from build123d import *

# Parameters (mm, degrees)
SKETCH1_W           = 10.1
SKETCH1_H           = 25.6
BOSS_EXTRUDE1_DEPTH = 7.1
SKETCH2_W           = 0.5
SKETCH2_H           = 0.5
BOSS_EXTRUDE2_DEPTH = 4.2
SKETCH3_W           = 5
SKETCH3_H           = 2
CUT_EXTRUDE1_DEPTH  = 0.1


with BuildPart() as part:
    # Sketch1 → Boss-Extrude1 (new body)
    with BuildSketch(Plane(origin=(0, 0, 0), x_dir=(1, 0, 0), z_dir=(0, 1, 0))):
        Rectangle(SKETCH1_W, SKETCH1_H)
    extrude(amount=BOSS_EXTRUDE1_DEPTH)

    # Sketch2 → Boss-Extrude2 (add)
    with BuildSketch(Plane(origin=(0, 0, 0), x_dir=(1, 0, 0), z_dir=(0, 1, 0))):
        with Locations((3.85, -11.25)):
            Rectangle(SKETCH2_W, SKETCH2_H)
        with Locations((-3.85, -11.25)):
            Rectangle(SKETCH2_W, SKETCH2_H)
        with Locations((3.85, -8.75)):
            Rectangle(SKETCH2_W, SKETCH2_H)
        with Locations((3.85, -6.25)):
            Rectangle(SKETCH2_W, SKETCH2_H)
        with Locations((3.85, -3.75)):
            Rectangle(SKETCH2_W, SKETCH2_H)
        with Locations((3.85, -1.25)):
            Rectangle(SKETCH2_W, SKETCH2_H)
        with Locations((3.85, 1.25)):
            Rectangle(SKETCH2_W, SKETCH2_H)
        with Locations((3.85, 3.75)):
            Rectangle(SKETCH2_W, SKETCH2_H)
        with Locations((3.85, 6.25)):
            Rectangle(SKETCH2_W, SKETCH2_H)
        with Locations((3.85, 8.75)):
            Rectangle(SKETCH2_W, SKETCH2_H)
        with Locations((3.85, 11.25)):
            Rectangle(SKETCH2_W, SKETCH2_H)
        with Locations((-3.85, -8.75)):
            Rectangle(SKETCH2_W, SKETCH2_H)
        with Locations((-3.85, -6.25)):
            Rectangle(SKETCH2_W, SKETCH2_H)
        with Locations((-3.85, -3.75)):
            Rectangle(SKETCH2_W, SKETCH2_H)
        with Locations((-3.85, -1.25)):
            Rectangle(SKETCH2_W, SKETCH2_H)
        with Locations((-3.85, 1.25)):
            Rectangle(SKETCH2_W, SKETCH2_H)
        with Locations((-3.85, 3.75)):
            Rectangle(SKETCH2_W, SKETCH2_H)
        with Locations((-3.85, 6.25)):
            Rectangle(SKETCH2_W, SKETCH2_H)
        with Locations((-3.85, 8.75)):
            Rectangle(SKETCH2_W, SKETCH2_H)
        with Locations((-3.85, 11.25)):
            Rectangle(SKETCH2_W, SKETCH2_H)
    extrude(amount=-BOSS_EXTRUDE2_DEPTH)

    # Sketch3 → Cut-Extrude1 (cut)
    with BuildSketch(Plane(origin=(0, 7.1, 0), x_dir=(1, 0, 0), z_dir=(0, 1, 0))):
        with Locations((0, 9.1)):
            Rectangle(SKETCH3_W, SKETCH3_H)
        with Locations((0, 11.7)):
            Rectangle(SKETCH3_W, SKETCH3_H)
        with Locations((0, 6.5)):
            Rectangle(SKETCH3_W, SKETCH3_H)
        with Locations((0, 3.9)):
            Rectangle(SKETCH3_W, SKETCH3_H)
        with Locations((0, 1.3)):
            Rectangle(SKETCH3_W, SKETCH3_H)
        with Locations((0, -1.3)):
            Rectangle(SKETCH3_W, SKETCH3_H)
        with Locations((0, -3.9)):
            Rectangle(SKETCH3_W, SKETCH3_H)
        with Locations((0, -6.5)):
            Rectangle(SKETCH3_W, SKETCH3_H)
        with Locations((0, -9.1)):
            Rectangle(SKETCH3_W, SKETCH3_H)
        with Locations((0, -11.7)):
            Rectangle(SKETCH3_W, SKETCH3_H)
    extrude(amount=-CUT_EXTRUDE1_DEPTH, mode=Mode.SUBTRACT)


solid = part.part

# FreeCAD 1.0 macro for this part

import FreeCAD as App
import Part
import Sketcher

V = App.Vector

doc = App.newDocument("Part")
body = doc.addObject("PartDesign::Body", "Body")

# Sketch on XZ plane
sketch1 = body.newObject("Sketcher::SketchObject", "Sketch")
sketch1.AttachmentSupport = (doc.getObject("XZ_Plane"), [""])
sketch1.MapMode = "FlatFace"
sketch1.addGeometry(Part.LineSegment(V(-5, -13, 0), V(-5, 13, 0)), False)
sketch1.addGeometry(Part.LineSegment(V(-5, 13, 0), V(5, 13, 0)), False)
sketch1.addGeometry(Part.LineSegment(V(5, 13, 0), V(5, -13, 0)), False)
sketch1.addGeometry(Part.LineSegment(V(5, -13, 0), V(-5, -13, 0)), False)
sketch1.addConstraint(Sketcher.Constraint("Coincident", 0, 2, 1, 1))
sketch1.addConstraint(Sketcher.Constraint("Coincident", 1, 2, 2, 1))
sketch1.addConstraint(Sketcher.Constraint("Coincident", 2, 2, 3, 1))
sketch1.addConstraint(Sketcher.Constraint("Coincident", 3, 2, 0, 1))
sketch1.addConstraint(Sketcher.Constraint("Vertical", 0))
sketch1.addConstraint(Sketcher.Constraint("Horizontal", 1))
sketch1.addConstraint(Sketcher.Constraint("Vertical", 2))
sketch1.addConstraint(Sketcher.Constraint("Horizontal", 3))
sketch1.addConstraint(Sketcher.Constraint("Symmetric", 0, 2, 2, 2, -1, 1))
sketch1.addConstraint(Sketcher.Constraint("DistanceX", 1, 1, 1, 2, 10.1))
sketch1.addConstraint(Sketcher.Constraint("DistanceY", 0, 1, 0, 2, 25.6))
pad1 = body.newObject("PartDesign::Pad", "Pad")
pad1.Profile = sketch1
pad1.Length = 7.1
pad1.Reversed = True

# Sketch on XZ plane
sketch2 = body.newObject("Sketcher::SketchObject", "Sketch001")
sketch2.AttachmentSupport = (doc.getObject("XZ_Plane"), [""])
sketch2.MapMode = "FlatFace"
sketch2.addGeometry(Part.LineSegment(V(3.6, 11, 0), V(3.6, 11.5, 0)), False)
sketch2.addGeometry(Part.LineSegment(V(3.6, 11.5, 0), V(4.1, 11.5, 0)), False)
sketch2.addGeometry(Part.LineSegment(V(4.1, 11.5, 0), V(4.1, 11, 0)), False)
sketch2.addGeometry(Part.LineSegment(V(4.1, 11, 0), V(3.6, 11, 0)), False)
sketch2.addGeometry(Part.LineSegment(V(-4.1, 11, 0), V(-4.1, 11.5, 0)), False)
sketch2.addGeometry(Part.LineSegment(V(-4.1, 11.5, 0), V(-3.6, 11.5, 0)), False)
sketch2.addGeometry(Part.LineSegment(V(-3.6, 11.5, 0), V(-3.6, 11, 0)), False)
sketch2.addGeometry(Part.LineSegment(V(-3.6, 11, 0), V(-4.1, 11, 0)), False)
sketch2.addGeometry(Part.LineSegment(V(3.6, 8.5, 0), V(3.6, 9, 0)), False)
sketch2.addGeometry(Part.LineSegment(V(3.6, 9, 0), V(4.1, 9, 0)), False)
sketch2.addGeometry(Part.LineSegment(V(4.1, 9, 0), V(4.1, 8.5, 0)), False)
sketch2.addGeometry(Part.LineSegment(V(4.1, 8.5, 0), V(3.6, 8.5, 0)), False)
sketch2.addGeometry(Part.LineSegment(V(3.6, 6, 0), V(3.6, 6.5, 0)), False)
sketch2.addGeometry(Part.LineSegment(V(3.6, 6.5, 0), V(4.1, 6.5, 0)), False)
sketch2.addGeometry(Part.LineSegment(V(4.1, 6.5, 0), V(4.1, 6, 0)), False)
sketch2.addGeometry(Part.LineSegment(V(4.1, 6, 0), V(3.6, 6, 0)), False)
sketch2.addGeometry(Part.LineSegment(V(3.6, 3.5, 0), V(3.6, 4, 0)), False)
sketch2.addGeometry(Part.LineSegment(V(3.6, 4, 0), V(4.1, 4, 0)), False)
sketch2.addGeometry(Part.LineSegment(V(4.1, 4, 0), V(4.1, 3.5, 0)), False)
sketch2.addGeometry(Part.LineSegment(V(4.1, 3.5, 0), V(3.6, 3.5, 0)), False)
sketch2.addGeometry(Part.LineSegment(V(3.6, 1, 0), V(3.6, 1.5, 0)), False)
sketch2.addGeometry(Part.LineSegment(V(3.6, 1.5, 0), V(4.1, 1.5, 0)), False)
sketch2.addGeometry(Part.LineSegment(V(4.1, 1.5, 0), V(4.1, 1, 0)), False)
sketch2.addGeometry(Part.LineSegment(V(4.1, 1, 0), V(3.6, 1, 0)), False)
sketch2.addGeometry(Part.LineSegment(V(3.6, -1.5, 0), V(3.6, -1, 0)), False)
sketch2.addGeometry(Part.LineSegment(V(3.6, -1, 0), V(4.1, -1, 0)), False)
sketch2.addGeometry(Part.LineSegment(V(4.1, -1, 0), V(4.1, -1.5, 0)), False)
sketch2.addGeometry(Part.LineSegment(V(4.1, -1.5, 0), V(3.6, -1.5, 0)), False)
sketch2.addGeometry(Part.LineSegment(V(3.6, -4, 0), V(3.6, -3.5, 0)), False)
sketch2.addGeometry(Part.LineSegment(V(3.6, -3.5, 0), V(4.1, -3.5, 0)), False)
sketch2.addGeometry(Part.LineSegment(V(4.1, -3.5, 0), V(4.1, -4, 0)), False)
sketch2.addGeometry(Part.LineSegment(V(4.1, -4, 0), V(3.6, -4, 0)), False)
sketch2.addGeometry(Part.LineSegment(V(3.6, -6.5, 0), V(3.6, -6, 0)), False)
sketch2.addGeometry(Part.LineSegment(V(3.6, -6, 0), V(4.1, -6, 0)), False)
sketch2.addGeometry(Part.LineSegment(V(4.1, -6, 0), V(4.1, -6.5, 0)), False)
sketch2.addGeometry(Part.LineSegment(V(4.1, -6.5, 0), V(3.6, -6.5, 0)), False)
sketch2.addGeometry(Part.LineSegment(V(3.6, -9, 0), V(3.6, -8.5, 0)), False)
sketch2.addGeometry(Part.LineSegment(V(3.6, -8.5, 0), V(4.1, -8.5, 0)), False)
sketch2.addGeometry(Part.LineSegment(V(4.1, -8.5, 0), V(4.1, -9, 0)), False)
sketch2.addGeometry(Part.LineSegment(V(4.1, -9, 0), V(3.6, -9, 0)), False)
sketch2.addGeometry(Part.LineSegment(V(3.6, -11.5, 0), V(3.6, -11, 0)), False)
sketch2.addGeometry(Part.LineSegment(V(3.6, -11, 0), V(4.1, -11, 0)), False)
sketch2.addGeometry(Part.LineSegment(V(4.1, -11, 0), V(4.1, -11.5, 0)), False)
sketch2.addGeometry(Part.LineSegment(V(4.1, -11.5, 0), V(3.6, -11.5, 0)), False)
sketch2.addGeometry(Part.LineSegment(V(-4.1, 8.5, 0), V(-4.1, 9, 0)), False)
sketch2.addGeometry(Part.LineSegment(V(-4.1, 9, 0), V(-3.6, 9, 0)), False)
sketch2.addGeometry(Part.LineSegment(V(-3.6, 9, 0), V(-3.6, 8.5, 0)), False)
sketch2.addGeometry(Part.LineSegment(V(-3.6, 8.5, 0), V(-4.1, 8.5, 0)), False)
sketch2.addGeometry(Part.LineSegment(V(-4.1, 6, 0), V(-4.1, 6.5, 0)), False)
sketch2.addGeometry(Part.LineSegment(V(-4.1, 6.5, 0), V(-3.6, 6.5, 0)), False)
sketch2.addGeometry(Part.LineSegment(V(-3.6, 6.5, 0), V(-3.6, 6, 0)), False)
sketch2.addGeometry(Part.LineSegment(V(-3.6, 6, 0), V(-4.1, 6, 0)), False)
sketch2.addGeometry(Part.LineSegment(V(-4.1, 3.5, 0), V(-4.1, 4, 0)), False)
sketch2.addGeometry(Part.LineSegment(V(-4.1, 4, 0), V(-3.6, 4, 0)), False)
sketch2.addGeometry(Part.LineSegment(V(-3.6, 4, 0), V(-3.6, 3.5, 0)), False)
sketch2.addGeometry(Part.LineSegment(V(-3.6, 3.5, 0), V(-4.1, 3.5, 0)), False)
sketch2.addGeometry(Part.LineSegment(V(-4.1, 1, 0), V(-4.1, 1.5, 0)), False)
sketch2.addGeometry(Part.LineSegment(V(-4.1, 1.5, 0), V(-3.6, 1.5, 0)), False)
sketch2.addGeometry(Part.LineSegment(V(-3.6, 1.5, 0), V(-3.6, 1, 0)), False)
sketch2.addGeometry(Part.LineSegment(V(-3.6, 1, 0), V(-4.1, 1, 0)), False)
sketch2.addGeometry(Part.LineSegment(V(-4.1, -1.5, 0), V(-4.1, -1, 0)), False)
sketch2.addGeometry(Part.LineSegment(V(-4.1, -1, 0), V(-3.6, -1, 0)), False)
sketch2.addGeometry(Part.LineSegment(V(-3.6, -1, 0), V(-3.6, -1.5, 0)), False)
sketch2.addGeometry(Part.LineSegment(V(-3.6, -1.5, 0), V(-4.1, -1.5, 0)), False)
sketch2.addGeometry(Part.LineSegment(V(-4.1, -4, 0), V(-4.1, -3.5, 0)), False)
sketch2.addGeometry(Part.LineSegment(V(-4.1, -3.5, 0), V(-3.6, -3.5, 0)), False)
sketch2.addGeometry(Part.LineSegment(V(-3.6, -3.5, 0), V(-3.6, -4, 0)), False)
sketch2.addGeometry(Part.LineSegment(V(-3.6, -4, 0), V(-4.1, -4, 0)), False)
sketch2.addGeometry(Part.LineSegment(V(-4.1, -6.5, 0), V(-4.1, -6, 0)), False)
sketch2.addGeometry(Part.LineSegment(V(-4.1, -6, 0), V(-3.6, -6, 0)), False)
sketch2.addGeometry(Part.LineSegment(V(-3.6, -6, 0), V(-3.6, -6.5, 0)), False)
sketch2.addGeometry(Part.LineSegment(V(-3.6, -6.5, 0), V(-4.1, -6.5, 0)), False)
sketch2.addGeometry(Part.LineSegment(V(-4.1, -9, 0), V(-4.1, -8.5, 0)), False)
sketch2.addGeometry(Part.LineSegment(V(-4.1, -8.5, 0), V(-3.6, -8.5, 0)), False)
sketch2.addGeometry(Part.LineSegment(V(-3.6, -8.5, 0), V(-3.6, -9, 0)), False)
sketch2.addGeometry(Part.LineSegment(V(-3.6, -9, 0), V(-4.1, -9, 0)), False)
sketch2.addGeometry(Part.LineSegment(V(-4.1, -11.5, 0), V(-4.1, -11, 0)), False)
sketch2.addGeometry(Part.LineSegment(V(-4.1, -11, 0), V(-3.6, -11, 0)), False)
sketch2.addGeometry(Part.LineSegment(V(-3.6, -11, 0), V(-3.6, -11.5, 0)), False)
sketch2.addGeometry(Part.LineSegment(V(-3.6, -11.5, 0), V(-4.1, -11.5, 0)), False)
sketch2.addConstraint(Sketcher.Constraint("Coincident", 0, 2, 1, 1))
sketch2.addConstraint(Sketcher.Constraint("Coincident", 1, 2, 2, 1))
sketch2.addConstraint(Sketcher.Constraint("Coincident", 2, 2, 3, 1))
sketch2.addConstraint(Sketcher.Constraint("Coincident", 3, 2, 0, 1))
sketch2.addConstraint(Sketcher.Constraint("Coincident", 4, 2, 5, 1))
sketch2.addConstraint(Sketcher.Constraint("Coincident", 5, 2, 6, 1))
sketch2.addConstraint(Sketcher.Constraint("Coincident", 6, 2, 7, 1))
sketch2.addConstraint(Sketcher.Constraint("Coincident", 7, 2, 4, 1))
sketch2.addConstraint(Sketcher.Constraint("Coincident", 8, 2, 9, 1))
sketch2.addConstraint(Sketcher.Constraint("Coincident", 9, 2, 10, 1))
sketch2.addConstraint(Sketcher.Constraint("Coincident", 10, 2, 11, 1))
sketch2.addConstraint(Sketcher.Constraint("Coincident", 11, 2, 8, 1))
sketch2.addConstraint(Sketcher.Constraint("Coincident", 12, 2, 13, 1))
sketch2.addConstraint(Sketcher.Constraint("Coincident", 13, 2, 14, 1))
sketch2.addConstraint(Sketcher.Constraint("Coincident", 14, 2, 15, 1))
sketch2.addConstraint(Sketcher.Constraint("Coincident", 15, 2, 12, 1))
sketch2.addConstraint(Sketcher.Constraint("Coincident", 16, 2, 17, 1))
sketch2.addConstraint(Sketcher.Constraint("Coincident", 17, 2, 18, 1))
sketch2.addConstraint(Sketcher.Constraint("Coincident", 18, 2, 19, 1))
sketch2.addConstraint(Sketcher.Constraint("Coincident", 19, 2, 16, 1))
sketch2.addConstraint(Sketcher.Constraint("Coincident", 20, 2, 21, 1))
sketch2.addConstraint(Sketcher.Constraint("Coincident", 21, 2, 22, 1))
sketch2.addConstraint(Sketcher.Constraint("Coincident", 22, 2, 23, 1))
sketch2.addConstraint(Sketcher.Constraint("Coincident", 23, 2, 20, 1))
sketch2.addConstraint(Sketcher.Constraint("Coincident", 24, 2, 25, 1))
sketch2.addConstraint(Sketcher.Constraint("Coincident", 25, 2, 26, 1))
sketch2.addConstraint(Sketcher.Constraint("Coincident", 26, 2, 27, 1))
sketch2.addConstraint(Sketcher.Constraint("Coincident", 27, 2, 24, 1))
sketch2.addConstraint(Sketcher.Constraint("Coincident", 28, 2, 29, 1))
sketch2.addConstraint(Sketcher.Constraint("Coincident", 29, 2, 30, 1))
sketch2.addConstraint(Sketcher.Constraint("Coincident", 30, 2, 31, 1))
sketch2.addConstraint(Sketcher.Constraint("Coincident", 31, 2, 28, 1))
sketch2.addConstraint(Sketcher.Constraint("Coincident", 32, 2, 33, 1))
sketch2.addConstraint(Sketcher.Constraint("Coincident", 33, 2, 34, 1))
sketch2.addConstraint(Sketcher.Constraint("Coincident", 34, 2, 35, 1))
sketch2.addConstraint(Sketcher.Constraint("Coincident", 35, 2, 32, 1))
sketch2.addConstraint(Sketcher.Constraint("Coincident", 36, 2, 37, 1))
sketch2.addConstraint(Sketcher.Constraint("Coincident", 37, 2, 38, 1))
sketch2.addConstraint(Sketcher.Constraint("Coincident", 38, 2, 39, 1))
sketch2.addConstraint(Sketcher.Constraint("Coincident", 39, 2, 36, 1))
sketch2.addConstraint(Sketcher.Constraint("Coincident", 40, 2, 41, 1))
sketch2.addConstraint(Sketcher.Constraint("Coincident", 41, 2, 42, 1))
sketch2.addConstraint(Sketcher.Constraint("Coincident", 42, 2, 43, 1))
sketch2.addConstraint(Sketcher.Constraint("Coincident", 43, 2, 40, 1))
sketch2.addConstraint(Sketcher.Constraint("Coincident", 44, 2, 45, 1))
sketch2.addConstraint(Sketcher.Constraint("Coincident", 45, 2, 46, 1))
sketch2.addConstraint(Sketcher.Constraint("Coincident", 46, 2, 47, 1))
sketch2.addConstraint(Sketcher.Constraint("Coincident", 47, 2, 44, 1))
sketch2.addConstraint(Sketcher.Constraint("Coincident", 48, 2, 49, 1))
sketch2.addConstraint(Sketcher.Constraint("Coincident", 49, 2, 50, 1))
sketch2.addConstraint(Sketcher.Constraint("Coincident", 50, 2, 51, 1))
sketch2.addConstraint(Sketcher.Constraint("Coincident", 51, 2, 48, 1))
sketch2.addConstraint(Sketcher.Constraint("Coincident", 52, 2, 53, 1))
sketch2.addConstraint(Sketcher.Constraint("Coincident", 53, 2, 54, 1))
sketch2.addConstraint(Sketcher.Constraint("Coincident", 54, 2, 55, 1))
sketch2.addConstraint(Sketcher.Constraint("Coincident", 55, 2, 52, 1))
sketch2.addConstraint(Sketcher.Constraint("Coincident", 56, 2, 57, 1))
sketch2.addConstraint(Sketcher.Constraint("Coincident", 57, 2, 58, 1))
sketch2.addConstraint(Sketcher.Constraint("Coincident", 58, 2, 59, 1))
sketch2.addConstraint(Sketcher.Constraint("Coincident", 59, 2, 56, 1))
sketch2.addConstraint(Sketcher.Constraint("Coincident", 60, 2, 61, 1))
sketch2.addConstraint(Sketcher.Constraint("Coincident", 61, 2, 62, 1))
sketch2.addConstraint(Sketcher.Constraint("Coincident", 62, 2, 63, 1))
sketch2.addConstraint(Sketcher.Constraint("Coincident", 63, 2, 60, 1))
sketch2.addConstraint(Sketcher.Constraint("Coincident", 64, 2, 65, 1))
sketch2.addConstraint(Sketcher.Constraint("Coincident", 65, 2, 66, 1))
sketch2.addConstraint(Sketcher.Constraint("Coincident", 66, 2, 67, 1))
sketch2.addConstraint(Sketcher.Constraint("Coincident", 67, 2, 64, 1))
sketch2.addConstraint(Sketcher.Constraint("Coincident", 68, 2, 69, 1))
sketch2.addConstraint(Sketcher.Constraint("Coincident", 69, 2, 70, 1))
sketch2.addConstraint(Sketcher.Constraint("Coincident", 70, 2, 71, 1))
sketch2.addConstraint(Sketcher.Constraint("Coincident", 71, 2, 68, 1))
sketch2.addConstraint(Sketcher.Constraint("Coincident", 72, 2, 73, 1))
sketch2.addConstraint(Sketcher.Constraint("Coincident", 73, 2, 74, 1))
sketch2.addConstraint(Sketcher.Constraint("Coincident", 74, 2, 75, 1))
sketch2.addConstraint(Sketcher.Constraint("Coincident", 75, 2, 72, 1))
sketch2.addConstraint(Sketcher.Constraint("Coincident", 76, 2, 77, 1))
sketch2.addConstraint(Sketcher.Constraint("Coincident", 77, 2, 78, 1))
sketch2.addConstraint(Sketcher.Constraint("Coincident", 78, 2, 79, 1))
sketch2.addConstraint(Sketcher.Constraint("Coincident", 79, 2, 76, 1))
sketch2.addConstraint(Sketcher.Constraint("Vertical", 0))
sketch2.addConstraint(Sketcher.Constraint("Horizontal", 1))
sketch2.addConstraint(Sketcher.Constraint("Vertical", 2))
sketch2.addConstraint(Sketcher.Constraint("Horizontal", 3))
sketch2.addConstraint(Sketcher.Constraint("Vertical", 4))
sketch2.addConstraint(Sketcher.Constraint("Horizontal", 5))
sketch2.addConstraint(Sketcher.Constraint("Vertical", 6))
sketch2.addConstraint(Sketcher.Constraint("Horizontal", 7))
sketch2.addConstraint(Sketcher.Constraint("Vertical", 8))
sketch2.addConstraint(Sketcher.Constraint("Horizontal", 9))
sketch2.addConstraint(Sketcher.Constraint("Vertical", 10))
sketch2.addConstraint(Sketcher.Constraint("Horizontal", 11))
sketch2.addConstraint(Sketcher.Constraint("Vertical", 12))
sketch2.addConstraint(Sketcher.Constraint("Horizontal", 13))
sketch2.addConstraint(Sketcher.Constraint("Vertical", 14))
sketch2.addConstraint(Sketcher.Constraint("Horizontal", 15))
sketch2.addConstraint(Sketcher.Constraint("Vertical", 16))
sketch2.addConstraint(Sketcher.Constraint("Horizontal", 17))
sketch2.addConstraint(Sketcher.Constraint("Vertical", 18))
sketch2.addConstraint(Sketcher.Constraint("Horizontal", 19))
sketch2.addConstraint(Sketcher.Constraint("Vertical", 20))
sketch2.addConstraint(Sketcher.Constraint("Horizontal", 21))
sketch2.addConstraint(Sketcher.Constraint("Vertical", 22))
sketch2.addConstraint(Sketcher.Constraint("Horizontal", 23))
sketch2.addConstraint(Sketcher.Constraint("Vertical", 24))
sketch2.addConstraint(Sketcher.Constraint("Horizontal", 25))
sketch2.addConstraint(Sketcher.Constraint("Vertical", 26))
sketch2.addConstraint(Sketcher.Constraint("Horizontal", 27))
sketch2.addConstraint(Sketcher.Constraint("Vertical", 28))
sketch2.addConstraint(Sketcher.Constraint("Horizontal", 29))
sketch2.addConstraint(Sketcher.Constraint("Vertical", 30))
sketch2.addConstraint(Sketcher.Constraint("Horizontal", 31))
sketch2.addConstraint(Sketcher.Constraint("Vertical", 32))
sketch2.addConstraint(Sketcher.Constraint("Horizontal", 33))
sketch2.addConstraint(Sketcher.Constraint("Vertical", 34))
sketch2.addConstraint(Sketcher.Constraint("Horizontal", 35))
sketch2.addConstraint(Sketcher.Constraint("Vertical", 36))
sketch2.addConstraint(Sketcher.Constraint("Horizontal", 37))
sketch2.addConstraint(Sketcher.Constraint("Vertical", 38))
sketch2.addConstraint(Sketcher.Constraint("Horizontal", 39))
sketch2.addConstraint(Sketcher.Constraint("Vertical", 40))
sketch2.addConstraint(Sketcher.Constraint("Horizontal", 41))
sketch2.addConstraint(Sketcher.Constraint("Vertical", 42))
sketch2.addConstraint(Sketcher.Constraint("Horizontal", 43))
sketch2.addConstraint(Sketcher.Constraint("Vertical", 44))
sketch2.addConstraint(Sketcher.Constraint("Horizontal", 45))
sketch2.addConstraint(Sketcher.Constraint("Vertical", 46))
sketch2.addConstraint(Sketcher.Constraint("Horizontal", 47))
sketch2.addConstraint(Sketcher.Constraint("Vertical", 48))
sketch2.addConstraint(Sketcher.Constraint("Horizontal", 49))
sketch2.addConstraint(Sketcher.Constraint("Vertical", 50))
sketch2.addConstraint(Sketcher.Constraint("Horizontal", 51))
sketch2.addConstraint(Sketcher.Constraint("Vertical", 52))
sketch2.addConstraint(Sketcher.Constraint("Horizontal", 53))
sketch2.addConstraint(Sketcher.Constraint("Vertical", 54))
sketch2.addConstraint(Sketcher.Constraint("Horizontal", 55))
sketch2.addConstraint(Sketcher.Constraint("Vertical", 56))
sketch2.addConstraint(Sketcher.Constraint("Horizontal", 57))
sketch2.addConstraint(Sketcher.Constraint("Vertical", 58))
sketch2.addConstraint(Sketcher.Constraint("Horizontal", 59))
sketch2.addConstraint(Sketcher.Constraint("Vertical", 60))
sketch2.addConstraint(Sketcher.Constraint("Horizontal", 61))
sketch2.addConstraint(Sketcher.Constraint("Vertical", 62))
sketch2.addConstraint(Sketcher.Constraint("Horizontal", 63))
sketch2.addConstraint(Sketcher.Constraint("Vertical", 64))
sketch2.addConstraint(Sketcher.Constraint("Horizontal", 65))
sketch2.addConstraint(Sketcher.Constraint("Vertical", 66))
sketch2.addConstraint(Sketcher.Constraint("Horizontal", 67))
sketch2.addConstraint(Sketcher.Constraint("Vertical", 68))
sketch2.addConstraint(Sketcher.Constraint("Horizontal", 69))
sketch2.addConstraint(Sketcher.Constraint("Vertical", 70))
sketch2.addConstraint(Sketcher.Constraint("Horizontal", 71))
sketch2.addConstraint(Sketcher.Constraint("Vertical", 72))
sketch2.addConstraint(Sketcher.Constraint("Horizontal", 73))
sketch2.addConstraint(Sketcher.Constraint("Vertical", 74))
sketch2.addConstraint(Sketcher.Constraint("Horizontal", 75))
sketch2.addConstraint(Sketcher.Constraint("Vertical", 76))
sketch2.addConstraint(Sketcher.Constraint("Horizontal", 77))
sketch2.addConstraint(Sketcher.Constraint("Vertical", 78))
sketch2.addConstraint(Sketcher.Constraint("Horizontal", 79))
sketch2.addConstraint(Sketcher.Constraint("Symmetric", 6, 2, 40, 2, -1, 1))
sketch2.addConstraint(Sketcher.Constraint("Symmetric", 4, 2, 42, 2, -1, 1))
sketch2.addConstraint(Sketcher.Constraint("Symmetric", 38, 2, 44, 2, -1, 1))
sketch2.addConstraint(Sketcher.Constraint("Symmetric", 36, 2, 46, 2, -1, 1))
sketch2.addConstraint(Sketcher.Constraint("Symmetric", 34, 2, 48, 2, -1, 1))
sketch2.addConstraint(Sketcher.Constraint("Symmetric", 32, 2, 50, 2, -1, 1))
sketch2.addConstraint(Sketcher.Constraint("Symmetric", 30, 2, 52, 2, -1, 1))
sketch2.addConstraint(Sketcher.Constraint("Symmetric", 28, 2, 54, 2, -1, 1))
sketch2.addConstraint(Sketcher.Constraint("Symmetric", 26, 2, 56, 2, -1, 1))
sketch2.addConstraint(Sketcher.Constraint("Symmetric", 24, 2, 58, 2, -1, 1))
sketch2.addConstraint(Sketcher.Constraint("Symmetric", 22, 2, 60, 2, -1, 1))
sketch2.addConstraint(Sketcher.Constraint("Symmetric", 20, 2, 62, 2, -1, 1))
sketch2.addConstraint(Sketcher.Constraint("Symmetric", 18, 2, 64, 2, -1, 1))
sketch2.addConstraint(Sketcher.Constraint("Symmetric", 16, 2, 66, 2, -1, 1))
sketch2.addConstraint(Sketcher.Constraint("Symmetric", 14, 2, 68, 2, -1, 1))
sketch2.addConstraint(Sketcher.Constraint("Symmetric", 12, 2, 70, 2, -1, 1))
sketch2.addConstraint(Sketcher.Constraint("Symmetric", 10, 2, 72, 2, -1, 1))
sketch2.addConstraint(Sketcher.Constraint("Symmetric", 8, 2, 74, 2, -1, 1))
sketch2.addConstraint(Sketcher.Constraint("Symmetric", 2, 2, 76, 2, -1, 1))
sketch2.addConstraint(Sketcher.Constraint("Symmetric", 0, 2, 78, 2, -1, 1))
sketch2.addConstraint(Sketcher.Constraint("Symmetric", 1, 2, 4, 2, -2))
sketch2.addConstraint(Sketcher.Constraint("Symmetric", 3, 2, 6, 2, -2))
sketch2.addConstraint(Sketcher.Constraint("Symmetric", 9, 2, 44, 2, -2))
sketch2.addConstraint(Sketcher.Constraint("Symmetric", 11, 2, 46, 2, -2))
sketch2.addConstraint(Sketcher.Constraint("Symmetric", 13, 2, 48, 2, -2))
sketch2.addConstraint(Sketcher.Constraint("Symmetric", 15, 2, 50, 2, -2))
sketch2.addConstraint(Sketcher.Constraint("Symmetric", 17, 2, 52, 2, -2))
sketch2.addConstraint(Sketcher.Constraint("Symmetric", 19, 2, 54, 2, -2))
sketch2.addConstraint(Sketcher.Constraint("Symmetric", 21, 2, 56, 2, -2))
sketch2.addConstraint(Sketcher.Constraint("Symmetric", 23, 2, 58, 2, -2))
sketch2.addConstraint(Sketcher.Constraint("Vertical", 3, 2, 8, 2))
sketch2.addConstraint(Sketcher.Constraint("Vertical", 2, 2, 9, 2))
sketch2.addConstraint(Sketcher.Constraint("Vertical", 11, 2, 12, 2))
sketch2.addConstraint(Sketcher.Constraint("Vertical", 10, 2, 13, 2))
sketch2.addConstraint(Sketcher.Constraint("Vertical", 15, 2, 16, 2))
sketch2.addConstraint(Sketcher.Constraint("Vertical", 14, 2, 17, 2))
sketch2.addConstraint(Sketcher.Constraint("Vertical", 19, 2, 20, 2))
sketch2.addConstraint(Sketcher.Constraint("Vertical", 18, 2, 21, 2))
sketch2.addConstraint(Sketcher.Constraint("Equal", 79, 0))
sketch2.addConstraint(Sketcher.Constraint("Equal", 6, 8))
sketch2.addConstraint(Sketcher.Constraint("Equal", 10, 12))
sketch2.addConstraint(Sketcher.Constraint("Equal", 14, 16))
sketch2.addConstraint(Sketcher.Constraint("Equal", 18, 20))
sketch2.addConstraint(Sketcher.Constraint("DistanceX", 1, 1, 1, 2, 0.5))
sketch2.addConstraint(Sketcher.Constraint("DistanceY", -1, 1, 2, 2, 11.0))
sketch2.addConstraint(Sketcher.Constraint("DistanceY", -1, 1, 8, 2, 9.0))
sketch2.addConstraint(Sketcher.Constraint("DistanceY", -1, 1, 14, 2, 6.0))
sketch2.addConstraint(Sketcher.Constraint("DistanceY", -1, 1, 16, 2, 4.0))
sketch2.addConstraint(Sketcher.Constraint("DistanceY", -1, 1, 22, 2, 1.0))
sketch2.addConstraint(Sketcher.Constraint("DistanceX", -1, 1, 0, 2, 3.6))
pad2 = body.newObject("PartDesign::Pad", "Pad001")
pad2.Profile = sketch2
pad2.Length = 4.2

# Sketch on XZ plane
sketch3 = body.newObject("Sketcher::SketchObject", "Sketch002")
sketch3.AttachmentSupport = (doc.getObject("XZ_Plane"), [""])
sketch3.MapMode = "FlatFace"
sketch3.AttachmentOffset = App.Placement(V(0, 0, -7.1), App.Rotation())
sketch3.addGeometry(Part.LineSegment(V(-2.5, -10.1, 0), V(-2.5, -8.1, 0)), False)
sketch3.addGeometry(Part.LineSegment(V(-2.5, -8.1, 0), V(2.5, -8.1, 0)), False)
sketch3.addGeometry(Part.LineSegment(V(2.5, -8.1, 0), V(2.5, -10.1, 0)), False)
sketch3.addGeometry(Part.LineSegment(V(2.5, -10.1, 0), V(-2.5, -10.1, 0)), False)
sketch3.addGeometry(Part.LineSegment(V(-2.5, -12.7, 0), V(-2.5, -10.7, 0)), False)
sketch3.addGeometry(Part.LineSegment(V(-2.5, -10.7, 0), V(2.5, -10.7, 0)), False)
sketch3.addGeometry(Part.LineSegment(V(2.5, -10.7, 0), V(2.5, -12.7, 0)), False)
sketch3.addGeometry(Part.LineSegment(V(2.5, -12.7, 0), V(-2.5, -12.7, 0)), False)
sketch3.addGeometry(Part.LineSegment(V(-2.5, -7.5, 0), V(-2.5, -5.5, 0)), False)
sketch3.addGeometry(Part.LineSegment(V(-2.5, -5.5, 0), V(2.5, -5.5, 0)), False)
sketch3.addGeometry(Part.LineSegment(V(2.5, -5.5, 0), V(2.5, -7.5, 0)), False)
sketch3.addGeometry(Part.LineSegment(V(2.5, -7.5, 0), V(-2.5, -7.5, 0)), False)
sketch3.addGeometry(Part.LineSegment(V(-2.5, -4.9, 0), V(-2.5, -2.9, 0)), False)
sketch3.addGeometry(Part.LineSegment(V(-2.5, -2.9, 0), V(2.5, -2.9, 0)), False)
sketch3.addGeometry(Part.LineSegment(V(2.5, -2.9, 0), V(2.5, -4.9, 0)), False)
sketch3.addGeometry(Part.LineSegment(V(2.5, -4.9, 0), V(-2.5, -4.9, 0)), False)
sketch3.addGeometry(Part.LineSegment(V(-2.5, -2.3, 0), V(-2.5, -0.3, 0)), False)
sketch3.addGeometry(Part.LineSegment(V(-2.5, -0.3, 0), V(2.5, -0.3, 0)), False)
sketch3.addGeometry(Part.LineSegment(V(2.5, -0.3, 0), V(2.5, -2.3, 0)), False)
sketch3.addGeometry(Part.LineSegment(V(2.5, -2.3, 0), V(-2.5, -2.3, 0)), False)
sketch3.addGeometry(Part.LineSegment(V(-2.5, 0.3, 0), V(-2.5, 2.3, 0)), False)
sketch3.addGeometry(Part.LineSegment(V(-2.5, 2.3, 0), V(2.5, 2.3, 0)), False)
sketch3.addGeometry(Part.LineSegment(V(2.5, 2.3, 0), V(2.5, 0.3, 0)), False)
sketch3.addGeometry(Part.LineSegment(V(2.5, 0.3, 0), V(-2.5, 0.3, 0)), False)
sketch3.addGeometry(Part.LineSegment(V(-2.5, 2.9, 0), V(-2.5, 4.9, 0)), False)
sketch3.addGeometry(Part.LineSegment(V(-2.5, 4.9, 0), V(2.5, 4.9, 0)), False)
sketch3.addGeometry(Part.LineSegment(V(2.5, 4.9, 0), V(2.5, 2.9, 0)), False)
sketch3.addGeometry(Part.LineSegment(V(2.5, 2.9, 0), V(-2.5, 2.9, 0)), False)
sketch3.addGeometry(Part.LineSegment(V(-2.5, 5.5, 0), V(-2.5, 7.5, 0)), False)
sketch3.addGeometry(Part.LineSegment(V(-2.5, 7.5, 0), V(2.5, 7.5, 0)), False)
sketch3.addGeometry(Part.LineSegment(V(2.5, 7.5, 0), V(2.5, 5.5, 0)), False)
sketch3.addGeometry(Part.LineSegment(V(2.5, 5.5, 0), V(-2.5, 5.5, 0)), False)
sketch3.addGeometry(Part.LineSegment(V(-2.5, 8.1, 0), V(-2.5, 10.1, 0)), False)
sketch3.addGeometry(Part.LineSegment(V(-2.5, 10.1, 0), V(2.5, 10.1, 0)), False)
sketch3.addGeometry(Part.LineSegment(V(2.5, 10.1, 0), V(2.5, 8.1, 0)), False)
sketch3.addGeometry(Part.LineSegment(V(2.5, 8.1, 0), V(-2.5, 8.1, 0)), False)
sketch3.addGeometry(Part.LineSegment(V(-2.5, 10.7, 0), V(-2.5, 12.7, 0)), False)
sketch3.addGeometry(Part.LineSegment(V(-2.5, 12.7, 0), V(2.5, 12.7, 0)), False)
sketch3.addGeometry(Part.LineSegment(V(2.5, 12.7, 0), V(2.5, 10.7, 0)), False)
sketch3.addGeometry(Part.LineSegment(V(2.5, 10.7, 0), V(-2.5, 10.7, 0)), False)
sketch3.addConstraint(Sketcher.Constraint("Coincident", 0, 2, 1, 1))
sketch3.addConstraint(Sketcher.Constraint("Coincident", 1, 2, 2, 1))
sketch3.addConstraint(Sketcher.Constraint("Coincident", 2, 2, 3, 1))
sketch3.addConstraint(Sketcher.Constraint("Coincident", 3, 2, 0, 1))
sketch3.addConstraint(Sketcher.Constraint("Coincident", 4, 2, 5, 1))
sketch3.addConstraint(Sketcher.Constraint("Coincident", 5, 2, 6, 1))
sketch3.addConstraint(Sketcher.Constraint("Coincident", 6, 2, 7, 1))
sketch3.addConstraint(Sketcher.Constraint("Coincident", 7, 2, 4, 1))
sketch3.addConstraint(Sketcher.Constraint("Coincident", 8, 2, 9, 1))
sketch3.addConstraint(Sketcher.Constraint("Coincident", 9, 2, 10, 1))
sketch3.addConstraint(Sketcher.Constraint("Coincident", 10, 2, 11, 1))
sketch3.addConstraint(Sketcher.Constraint("Coincident", 11, 2, 8, 1))
sketch3.addConstraint(Sketcher.Constraint("Coincident", 12, 2, 13, 1))
sketch3.addConstraint(Sketcher.Constraint("Coincident", 13, 2, 14, 1))
sketch3.addConstraint(Sketcher.Constraint("Coincident", 14, 2, 15, 1))
sketch3.addConstraint(Sketcher.Constraint("Coincident", 15, 2, 12, 1))
sketch3.addConstraint(Sketcher.Constraint("Coincident", 16, 2, 17, 1))
sketch3.addConstraint(Sketcher.Constraint("Coincident", 17, 2, 18, 1))
sketch3.addConstraint(Sketcher.Constraint("Coincident", 18, 2, 19, 1))
sketch3.addConstraint(Sketcher.Constraint("Coincident", 19, 2, 16, 1))
sketch3.addConstraint(Sketcher.Constraint("Coincident", 20, 2, 21, 1))
sketch3.addConstraint(Sketcher.Constraint("Coincident", 21, 2, 22, 1))
sketch3.addConstraint(Sketcher.Constraint("Coincident", 22, 2, 23, 1))
sketch3.addConstraint(Sketcher.Constraint("Coincident", 23, 2, 20, 1))
sketch3.addConstraint(Sketcher.Constraint("Coincident", 24, 2, 25, 1))
sketch3.addConstraint(Sketcher.Constraint("Coincident", 25, 2, 26, 1))
sketch3.addConstraint(Sketcher.Constraint("Coincident", 26, 2, 27, 1))
sketch3.addConstraint(Sketcher.Constraint("Coincident", 27, 2, 24, 1))
sketch3.addConstraint(Sketcher.Constraint("Coincident", 28, 2, 29, 1))
sketch3.addConstraint(Sketcher.Constraint("Coincident", 29, 2, 30, 1))
sketch3.addConstraint(Sketcher.Constraint("Coincident", 30, 2, 31, 1))
sketch3.addConstraint(Sketcher.Constraint("Coincident", 31, 2, 28, 1))
sketch3.addConstraint(Sketcher.Constraint("Coincident", 32, 2, 33, 1))
sketch3.addConstraint(Sketcher.Constraint("Coincident", 33, 2, 34, 1))
sketch3.addConstraint(Sketcher.Constraint("Coincident", 34, 2, 35, 1))
sketch3.addConstraint(Sketcher.Constraint("Coincident", 35, 2, 32, 1))
sketch3.addConstraint(Sketcher.Constraint("Coincident", 36, 2, 37, 1))
sketch3.addConstraint(Sketcher.Constraint("Coincident", 37, 2, 38, 1))
sketch3.addConstraint(Sketcher.Constraint("Coincident", 38, 2, 39, 1))
sketch3.addConstraint(Sketcher.Constraint("Coincident", 39, 2, 36, 1))
sketch3.addConstraint(Sketcher.Constraint("Vertical", 0))
sketch3.addConstraint(Sketcher.Constraint("Horizontal", 1))
sketch3.addConstraint(Sketcher.Constraint("Vertical", 2))
sketch3.addConstraint(Sketcher.Constraint("Horizontal", 3))
sketch3.addConstraint(Sketcher.Constraint("Vertical", 4))
sketch3.addConstraint(Sketcher.Constraint("Horizontal", 5))
sketch3.addConstraint(Sketcher.Constraint("Vertical", 6))
sketch3.addConstraint(Sketcher.Constraint("Horizontal", 7))
sketch3.addConstraint(Sketcher.Constraint("Vertical", 8))
sketch3.addConstraint(Sketcher.Constraint("Horizontal", 9))
sketch3.addConstraint(Sketcher.Constraint("Vertical", 10))
sketch3.addConstraint(Sketcher.Constraint("Horizontal", 11))
sketch3.addConstraint(Sketcher.Constraint("Vertical", 12))
sketch3.addConstraint(Sketcher.Constraint("Horizontal", 13))
sketch3.addConstraint(Sketcher.Constraint("Vertical", 14))
sketch3.addConstraint(Sketcher.Constraint("Horizontal", 15))
sketch3.addConstraint(Sketcher.Constraint("Vertical", 16))
sketch3.addConstraint(Sketcher.Constraint("Horizontal", 17))
sketch3.addConstraint(Sketcher.Constraint("Vertical", 18))
sketch3.addConstraint(Sketcher.Constraint("Horizontal", 19))
sketch3.addConstraint(Sketcher.Constraint("Vertical", 20))
sketch3.addConstraint(Sketcher.Constraint("Horizontal", 21))
sketch3.addConstraint(Sketcher.Constraint("Vertical", 22))
sketch3.addConstraint(Sketcher.Constraint("Horizontal", 23))
sketch3.addConstraint(Sketcher.Constraint("Vertical", 24))
sketch3.addConstraint(Sketcher.Constraint("Horizontal", 25))
sketch3.addConstraint(Sketcher.Constraint("Vertical", 26))
sketch3.addConstraint(Sketcher.Constraint("Horizontal", 27))
sketch3.addConstraint(Sketcher.Constraint("Vertical", 28))
sketch3.addConstraint(Sketcher.Constraint("Horizontal", 29))
sketch3.addConstraint(Sketcher.Constraint("Vertical", 30))
sketch3.addConstraint(Sketcher.Constraint("Horizontal", 31))
sketch3.addConstraint(Sketcher.Constraint("Vertical", 32))
sketch3.addConstraint(Sketcher.Constraint("Horizontal", 33))
sketch3.addConstraint(Sketcher.Constraint("Vertical", 34))
sketch3.addConstraint(Sketcher.Constraint("Horizontal", 35))
sketch3.addConstraint(Sketcher.Constraint("Vertical", 36))
sketch3.addConstraint(Sketcher.Constraint("Horizontal", 37))
sketch3.addConstraint(Sketcher.Constraint("Vertical", 38))
sketch3.addConstraint(Sketcher.Constraint("Horizontal", 39))
sketch3.addConstraint(Sketcher.Constraint("Symmetric", 18, 2, 20, 2, -1, 1))
sketch3.addConstraint(Sketcher.Constraint("Symmetric", 16, 2, 22, 2, -1, 1))
sketch3.addConstraint(Sketcher.Constraint("Symmetric", 14, 2, 24, 2, -1, 1))
sketch3.addConstraint(Sketcher.Constraint("Symmetric", 12, 2, 26, 2, -1, 1))
sketch3.addConstraint(Sketcher.Constraint("Symmetric", 10, 2, 28, 2, -1, 1))
sketch3.addConstraint(Sketcher.Constraint("Symmetric", 8, 2, 30, 2, -1, 1))
sketch3.addConstraint(Sketcher.Constraint("Symmetric", 2, 2, 32, 2, -1, 1))
sketch3.addConstraint(Sketcher.Constraint("Symmetric", 0, 2, 34, 2, -1, 1))
sketch3.addConstraint(Sketcher.Constraint("Symmetric", 6, 2, 36, 2, -1, 1))
sketch3.addConstraint(Sketcher.Constraint("Symmetric", 4, 2, 38, 2, -1, 1))
sketch3.addConstraint(Sketcher.Constraint("Vertical", 3, 2, 4, 2))
sketch3.addConstraint(Sketcher.Constraint("Vertical", 2, 2, 5, 2))
sketch3.addConstraint(Sketcher.Constraint("Vertical", 7, 2, 8, 2))
sketch3.addConstraint(Sketcher.Constraint("Vertical", 6, 2, 9, 2))
sketch3.addConstraint(Sketcher.Constraint("Vertical", 11, 2, 12, 2))
sketch3.addConstraint(Sketcher.Constraint("Vertical", 10, 2, 13, 2))
sketch3.addConstraint(Sketcher.Constraint("Vertical", 15, 2, 16, 2))
sketch3.addConstraint(Sketcher.Constraint("Vertical", 14, 2, 17, 2))
sketch3.addConstraint(Sketcher.Constraint("Vertical", 19, 2, 20, 2))
sketch3.addConstraint(Sketcher.Constraint("Equal", 2, 4))
sketch3.addConstraint(Sketcher.Constraint("Equal", 6, 8))
sketch3.addConstraint(Sketcher.Constraint("Equal", 10, 12))
sketch3.addConstraint(Sketcher.Constraint("Equal", 14, 16))
sketch3.addConstraint(Sketcher.Constraint("DistanceX", 1, 1, 1, 2, 5.0))
sketch3.addConstraint(Sketcher.Constraint("DistanceY", 0, 1, 0, 2, 2.0))
sketch3.addConstraint(Sketcher.Constraint("DistanceY", 0, 2, -1, 1, 8.1))
sketch3.addConstraint(Sketcher.Constraint("DistanceY", 4, 2, -1, 1, 10.7))
sketch3.addConstraint(Sketcher.Constraint("DistanceY", 8, 2, -1, 1, 5.5))
sketch3.addConstraint(Sketcher.Constraint("DistanceY", 12, 2, -1, 1, 2.9))
sketch3.addConstraint(Sketcher.Constraint("DistanceY", 16, 2, -1, 1, 0.3))
pocket1 = body.newObject("PartDesign::Pocket", "Pocket")
pocket1.Profile = sketch3
pocket1.Length = 0.1
pocket1.Reversed = True

doc.recompute()
